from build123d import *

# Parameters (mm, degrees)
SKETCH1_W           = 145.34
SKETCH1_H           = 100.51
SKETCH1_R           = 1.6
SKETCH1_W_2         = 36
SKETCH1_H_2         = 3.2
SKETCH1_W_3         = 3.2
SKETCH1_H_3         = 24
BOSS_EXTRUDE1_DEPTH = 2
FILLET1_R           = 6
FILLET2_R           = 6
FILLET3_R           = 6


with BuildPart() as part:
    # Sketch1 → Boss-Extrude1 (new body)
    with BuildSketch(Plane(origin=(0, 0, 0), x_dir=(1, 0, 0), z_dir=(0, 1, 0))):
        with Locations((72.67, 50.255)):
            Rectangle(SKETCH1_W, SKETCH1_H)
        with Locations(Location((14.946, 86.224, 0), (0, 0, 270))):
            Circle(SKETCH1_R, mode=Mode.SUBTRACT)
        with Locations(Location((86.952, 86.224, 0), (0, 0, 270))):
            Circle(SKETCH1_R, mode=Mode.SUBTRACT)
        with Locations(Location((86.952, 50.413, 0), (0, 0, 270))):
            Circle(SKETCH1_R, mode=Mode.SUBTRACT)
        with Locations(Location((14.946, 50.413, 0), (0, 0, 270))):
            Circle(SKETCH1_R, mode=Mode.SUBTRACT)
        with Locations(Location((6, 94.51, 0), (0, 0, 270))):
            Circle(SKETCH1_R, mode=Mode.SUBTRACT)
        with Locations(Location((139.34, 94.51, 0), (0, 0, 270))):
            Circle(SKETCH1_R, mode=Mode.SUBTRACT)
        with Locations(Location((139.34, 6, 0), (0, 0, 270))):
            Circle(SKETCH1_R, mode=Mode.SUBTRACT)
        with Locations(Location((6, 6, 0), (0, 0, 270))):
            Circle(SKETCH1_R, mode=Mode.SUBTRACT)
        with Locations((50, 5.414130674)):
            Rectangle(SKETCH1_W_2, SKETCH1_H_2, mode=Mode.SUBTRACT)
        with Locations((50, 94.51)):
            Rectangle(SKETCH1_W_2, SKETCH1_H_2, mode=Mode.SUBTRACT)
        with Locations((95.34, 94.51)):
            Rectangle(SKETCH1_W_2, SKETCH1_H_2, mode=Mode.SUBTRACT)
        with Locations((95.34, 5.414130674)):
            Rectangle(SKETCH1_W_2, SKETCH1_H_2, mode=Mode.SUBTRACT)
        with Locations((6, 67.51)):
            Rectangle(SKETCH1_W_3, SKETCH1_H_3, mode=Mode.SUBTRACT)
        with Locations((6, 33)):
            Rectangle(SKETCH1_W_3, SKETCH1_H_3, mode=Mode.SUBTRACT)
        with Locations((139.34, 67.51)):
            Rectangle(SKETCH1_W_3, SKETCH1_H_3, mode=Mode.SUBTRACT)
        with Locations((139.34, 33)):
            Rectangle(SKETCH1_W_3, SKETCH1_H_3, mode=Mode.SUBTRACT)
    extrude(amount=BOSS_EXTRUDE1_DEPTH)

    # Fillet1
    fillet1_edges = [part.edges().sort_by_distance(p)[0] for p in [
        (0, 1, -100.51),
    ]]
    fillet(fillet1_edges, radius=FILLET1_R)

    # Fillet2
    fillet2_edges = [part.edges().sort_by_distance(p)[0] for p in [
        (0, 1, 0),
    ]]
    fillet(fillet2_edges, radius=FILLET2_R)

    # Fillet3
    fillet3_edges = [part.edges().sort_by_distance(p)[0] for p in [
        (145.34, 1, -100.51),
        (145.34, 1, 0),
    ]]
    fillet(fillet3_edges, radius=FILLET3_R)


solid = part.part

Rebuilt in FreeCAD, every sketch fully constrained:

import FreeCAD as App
import Part
import Sketcher


def edges_at(feature, points):
    """Names of the edges that pass closest to the given points."""
    edges = feature.Shape.Edges
    near = lambda p: min(range(len(edges)), key=lambda i: edges[i].distToShape(Part.Vertex(*p))[0])
    return sorted({f"Edge{near(p) + 1}" for p in points})

doc = App.newDocument("Part")
body = doc.addObject("PartDesign::Body", "Body")

# Sketch on XZ plane
sketch1 = body.newObject("Sketcher::SketchObject", "Sketch")
sketch1.AttachmentSupport = (doc.getObject("XZ_Plane"), [""])
sketch1.MapMode = "FlatFace"
sketch1.addGeometry(Part.LineSegment(App.Vector(0, -100.5, 0), App.Vector(0, 0, 0)), False)
sketch1.addGeometry(Part.LineSegment(App.Vector(0, 0, 0), App.Vector(145.3, 0, 0)), False)
sketch1.addGeometry(Part.LineSegment(App.Vector(145.3, 0, 0), App.Vector(145.3, -100.5, 0)), False)
sketch1.addGeometry(Part.LineSegment(App.Vector(145.3, -100.5, 0), App.Vector(0, -100.5, 0)), False)
sketch1.addGeometry(Part.Circle(App.Vector(6, -6, 0), App.Vector(0, 0, 1), 1.6), False)
sketch1.addGeometry(Part.LineSegment(App.Vector(68, -3.8, 0), App.Vector(32, -3.8, 0)), False)
sketch1.addGeometry(Part.LineSegment(App.Vector(32, -3.8, 0), App.Vector(32, -7, 0)), False)
sketch1.addGeometry(Part.LineSegment(App.Vector(32, -7, 0), App.Vector(68, -7, 0)), False)
sketch1.addGeometry(Part.LineSegment(App.Vector(68, -7, 0), App.Vector(68, -3.8, 0)), False)
sketch1.addGeometry(Part.LineSegment(App.Vector(7.6, -21, 0), App.Vector(4.4, -21, 0)), False)
sketch1.addGeometry(Part.LineSegment(App.Vector(4.4, -21, 0), App.Vector(4.4, -45, 0)), False)
sketch1.addGeometry(Part.LineSegment(App.Vector(4.4, -45, 0), App.Vector(7.6, -45, 0)), False)
sketch1.addGeometry(Part.LineSegment(App.Vector(7.6, -45, 0), App.Vector(7.6, -21, 0)), False)
sketch1.addGeometry(Part.LineSegment(App.Vector(113.3, -3.8, 0), App.Vector(77.3, -3.8, 0)), False)
sketch1.addGeometry(Part.LineSegment(App.Vector(77.3, -3.8, 0), App.Vector(77.3, -7, 0)), False)
sketch1.addGeometry(Part.LineSegment(App.Vector(77.3, -7, 0), App.Vector(113.3, -7, 0)), False)
sketch1.addGeometry(Part.LineSegment(App.Vector(113.3, -7, 0), App.Vector(113.3, -3.8, 0)), False)
sketch1.addGeometry(Part.Circle(App.Vector(139.3, -6, 0), App.Vector(0, 0, 1), 1.6), False)
sketch1.addGeometry(Part.LineSegment(App.Vector(140.9, -21, 0), App.Vector(137.7, -21, 0)), False)
sketch1.addGeometry(Part.LineSegment(App.Vector(137.7, -21, 0), App.Vector(137.7, -45, 0)), False)
sketch1.addGeometry(Part.LineSegment(App.Vector(137.7, -45, 0), App.Vector(140.9, -45, 0)), False)
sketch1.addGeometry(Part.LineSegment(App.Vector(140.9, -45, 0), App.Vector(140.9, -21, 0)), False)
sketch1.addGeometry(Part.Circle(App.Vector(14.9, -50.4, 0), App.Vector(0, 0, 1), 1.6), False)
sketch1.addGeometry(Part.LineSegment(App.Vector(7.6, -55.5, 0), App.Vector(4.4, -55.5, 0)), False)
sketch1.addGeometry(Part.LineSegment(App.Vector(4.4, -55.5, 0), App.Vector(4.4, -79.5, 0)), False)
sketch1.addGeometry(Part.LineSegment(App.Vector(4.4, -79.5, 0), App.Vector(7.6, -79.5, 0)), False)
sketch1.addGeometry(Part.LineSegment(App.Vector(7.6, -79.5, 0), App.Vector(7.6, -55.5, 0)), False)
sketch1.addGeometry(Part.Circle(App.Vector(14.9, -86.2, 0), App.Vector(0, 0, 1), 1.6), False)
sketch1.addGeometry(Part.Circle(App.Vector(6, -94.5, 0), App.Vector(0, 0, 1), 1.6), False)
sketch1.addGeometry(Part.LineSegment(App.Vector(68, -92.9, 0), App.Vector(32, -92.9, 0)), False)
sketch1.addGeometry(Part.LineSegment(App.Vector(32, -92.9, 0), App.Vector(32, -96.1, 0)), False)
sketch1.addGeometry(Part.LineSegment(App.Vector(32, -96.1, 0), App.Vector(68, -96.1, 0)), False)
sketch1.addGeometry(Part.LineSegment(App.Vector(68, -96.1, 0), App.Vector(68, -92.9, 0)), False)
sketch1.addGeometry(Part.Circle(App.Vector(87, -50.4, 0), App.Vector(0, 0, 1), 1.6), False)
sketch1.addGeometry(Part.LineSegment(App.Vector(140.9, -55.5, 0), App.Vector(137.7, -55.5, 0)), False)
sketch1.addGeometry(Part.LineSegment(App.Vector(137.7, -55.5, 0), App.Vector(137.7, -79.5, 0)), False)
sketch1.addGeometry(Part.LineSegment(App.Vector(137.7, -79.5, 0), App.Vector(140.9, -79.5, 0)), False)
sketch1.addGeometry(Part.LineSegment(App.Vector(140.9, -79.5, 0), App.Vector(140.9, -55.5, 0)), False)
sketch1.addGeometry(Part.Circle(App.Vector(87, -86.2, 0), App.Vector(0, 0, 1), 1.6), False)
sketch1.addGeometry(Part.LineSegment(App.Vector(113.3, -92.9, 0), App.Vector(77.3, -92.9, 0)), False)
sketch1.addGeometry(Part.LineSegment(App.Vector(77.3, -92.9, 0), App.Vector(77.3, -96.1, 0)), False)
sketch1.addGeometry(Part.LineSegment(App.Vector(77.3, -96.1, 0), App.Vector(113.3, -96.1, 0)), False)
sketch1.addGeometry(Part.LineSegment(App.Vector(113.3, -96.1, 0), App.Vector(113.3, -92.9, 0)), False)
sketch1.addGeometry(Part.Circle(App.Vector(139.3, -94.5, 0), App.Vector(0, 0, 1), 1.6), False)
sketch1.addConstraint(Sketcher.Constraint("Coincident", 0, 2, 1, 1))
sketch1.addConstraint(Sketcher.Constraint("Coincident", 1, 2, 2, 1))
sketch1.addConstraint(Sketcher.Constraint("Coincident", 2, 2, 3, 1))
sketch1.addConstraint(Sketcher.Constraint("Coincident", 3, 2, 0, 1))
sketch1.addConstraint(Sketcher.Constraint("Coincident", 5, 2, 6, 1))
sketch1.addConstraint(Sketcher.Constraint("Coincident", 6, 2, 7, 1))
sketch1.addConstraint(Sketcher.Constraint("Coincident", 7, 2, 8, 1))
sketch1.addConstraint(Sketcher.Constraint("Coincident", 8, 2, 5, 1))
sketch1.addConstraint(Sketcher.Constraint("Coincident", 9, 2, 10, 1))
sketch1.addConstraint(Sketcher.Constraint("Coincident", 10, 2, 11, 1))
sketch1.addConstraint(Sketcher.Constraint("Coincident", 11, 2, 12, 1))
sketch1.addConstraint(Sketcher.Constraint("Coincident", 12, 2, 9, 1))
sketch1.addConstraint(Sketcher.Constraint("Coincident", 13, 2, 14, 1))
sketch1.addConstraint(Sketcher.Constraint("Coincident", 14, 2, 15, 1))
sketch1.addConstraint(Sketcher.Constraint("Coincident", 15, 2, 16, 1))
sketch1.addConstraint(Sketcher.Constraint("Coincident", 16, 2, 13, 1))
sketch1.addConstraint(Sketcher.Constraint("Coincident", 18, 2, 19, 1))
sketch1.addConstraint(Sketcher.Constraint("Coincident", 19, 2, 20, 1))
sketch1.addConstraint(Sketcher.Constraint("Coincident", 20, 2, 21, 1))
sketch1.addConstraint(Sketcher.Constraint("Coincident", 21, 2, 18, 1))
sketch1.addConstraint(Sketcher.Constraint("Coincident", 23, 2, 24, 1))
sketch1.addConstraint(Sketcher.Constraint("Coincident", 24, 2, 25, 1))
sketch1.addConstraint(Sketcher.Constraint("Coincident", 25, 2, 26, 1))
sketch1.addConstraint(Sketcher.Constraint("Coincident", 26, 2, 23, 1))
sketch1.addConstraint(Sketcher.Constraint("Coincident", 29, 2, 30, 1))
sketch1.addConstraint(Sketcher.Constraint("Coincident", 30, 2, 31, 1))
sketch1.addConstraint(Sketcher.Constraint("Coincident", 31, 2, 32, 1))
sketch1.addConstraint(Sketcher.Constraint("Coincident", 32, 2, 29, 1))
sketch1.addConstraint(Sketcher.Constraint("Coincident", 34, 2, 35, 1))
sketch1.addConstraint(Sketcher.Constraint("Coincident", 35, 2, 36, 1))
sketch1.addConstraint(Sketcher.Constraint("Coincident", 36, 2, 37, 1))
sketch1.addConstraint(Sketcher.Constraint("Coincident", 37, 2, 34, 1))
sketch1.addConstraint(Sketcher.Constraint("Coincident", 39, 2, 40, 1))
sketch1.addConstraint(Sketcher.Constraint("Coincident", 40, 2, 41, 1))
sketch1.addConstraint(Sketcher.Constraint("Coincident", 41, 2, 42, 1))
sketch1.addConstraint(Sketcher.Constraint("Coincident", 42, 2, 39, 1))
sketch1.addConstraint(Sketcher.Constraint("Vertical", 0))
sketch1.addConstraint(Sketcher.Constraint("Horizontal", 1))
sketch1.addConstraint(Sketcher.Constraint("Vertical", 2))
sketch1.addConstraint(Sketcher.Constraint("Horizontal", 3))
sketch1.addConstraint(Sketcher.Constraint("Horizontal", 5))
sketch1.addConstraint(Sketcher.Constraint("Vertical", 6))
sketch1.addConstraint(Sketcher.Constraint("Horizontal", 7))
sketch1.addConstraint(Sketcher.Constraint("Vertical", 8))
sketch1.addConstraint(Sketcher.Constraint("Horizontal", 9))
sketch1.addConstraint(Sketcher.Constraint("Vertical", 10))
sketch1.addConstraint(Sketcher.Constraint("Horizontal", 11))
sketch1.addConstraint(Sketcher.Constraint("Vertical", 12))
sketch1.addConstraint(Sketcher.Constraint("Horizontal", 13))
sketch1.addConstraint(Sketcher.Constraint("Vertical", 14))
sketch1.addConstraint(Sketcher.Constraint("Horizontal", 15))
sketch1.addConstraint(Sketcher.Constraint("Vertical", 16))
sketch1.addConstraint(Sketcher.Constraint("Horizontal", 18))
sketch1.addConstraint(Sketcher.Constraint("Vertical", 19))
sketch1.addConstraint(Sketcher.Constraint("Horizontal", 20))
sketch1.addConstraint(Sketcher.Constraint("Vertical", 21))
sketch1.addConstraint(Sketcher.Constraint("Horizontal", 23))
sketch1.addConstraint(Sketcher.Constraint("Vertical", 24))
sketch1.addConstraint(Sketcher.Constraint("Horizontal", 25))
sketch1.addConstraint(Sketcher.Constraint("Vertical", 26))
sketch1.addConstraint(Sketcher.Constraint("Horizontal", 29))
sketch1.addConstraint(Sketcher.Constraint("Vertical", 30))
sketch1.addConstraint(Sketcher.Constraint("Horizontal", 31))
sketch1.addConstraint(Sketcher.Constraint("Vertical", 32))
sketch1.addConstraint(Sketcher.Constraint("Horizontal", 34))
sketch1.addConstraint(Sketcher.Constraint("Vertical", 35))
sketch1.addConstraint(Sketcher.Constraint("Horizontal", 36))
sketch1.addConstraint(Sketcher.Constraint("Vertical", 37))
sketch1.addConstraint(Sketcher.Constraint("Horizontal", 39))
sketch1.addConstraint(Sketcher.Constraint("Vertical", 40))
sketch1.addConstraint(Sketcher.Constraint("Horizontal", 41))
sketch1.addConstraint(Sketcher.Constraint("Vertical", 42))
sketch1.addConstraint(Sketcher.Constraint("Coincident", 0, 2, -1, 1))
sketch1.addConstraint(Sketcher.Constraint("Equal", 4, 17))
sketch1.addConstraint(Sketcher.Constraint("Equal", 17, 22))
sketch1.addConstraint(Sketcher.Constraint("Equal", 22, 27))
sketch1.addConstraint(Sketcher.Constraint("Equal", 27, 28))
sketch1.addConstraint(Sketcher.Constraint("Equal", 28, 33))
sketch1.addConstraint(Sketcher.Constraint("Equal", 33, 38))
sketch1.addConstraint(Sketcher.Constraint("Equal", 38, 43))
sketch1.addConstraint(Sketcher.Constraint("Horizontal", 4, 3, 17, 3))
sketch1.addConstraint(Sketcher.Constraint("Horizontal", 22, 3, 33, 3))
sketch1.addConstraint(Sketcher.Constraint("Horizontal", 27, 3, 38, 3))
sketch1.addConstraint(Sketcher.Constraint("Horizontal", 28, 3, 43, 3))
sketch1.addConstraint(Sketcher.Constraint("Horizontal", 8, 2, 13, 2))
sketch1.addConstraint(Sketcher.Constraint("Horizontal", 7, 2, 14, 2))
sketch1.addConstraint(Sketcher.Constraint("Horizontal", 12, 2, 18, 2))
sketch1.addConstraint(Sketcher.Constraint("Horizontal", 11, 2, 19, 2))
sketch1.addConstraint(Sketcher.Constraint("Horizontal", 26, 2, 34, 2))
sketch1.addConstraint(Sketcher.Constraint("Horizontal", 25, 2, 35, 2))
sketch1.addConstraint(Sketcher.Constraint("Horizontal", 32, 2, 39, 2))
sketch1.addConstraint(Sketcher.Constraint("Horizontal", 31, 2, 40, 2))
sketch1.addConstraint(Sketcher.Constraint("Vertical", 22, 3, 27, 3))
sketch1.addConstraint(Sketcher.Constraint("Vertical", 4, 3, 28, 3))
sketch1.addConstraint(Sketcher.Constraint("Vertical", 33, 3, 38, 3))
sketch1.addConstraint(Sketcher.Constraint("Vertical", 17, 3, 43, 3))
sketch1.addConstraint(Sketcher.Constraint("Vertical", 10, 2, 23, 2))
sketch1.addConstraint(Sketcher.Constraint("Vertical", 12, 2, 25, 2))
sketch1.addConstraint(Sketcher.Constraint("Vertical", 6, 2, 29, 2))
sketch1.addConstraint(Sketcher.Constraint("Vertical", 8, 2, 31, 2))
sketch1.addConstraint(Sketcher.Constraint("Vertical", 19, 2, 34, 2))
sketch1.addConstraint(Sketcher.Constraint("Vertical", 21, 2, 36, 2))
sketch1.addConstraint(Sketcher.Constraint("Vertical", 14, 2, 39, 2))
sketch1.addConstraint(Sketcher.Constraint("Vertical", 16, 2, 41, 2))
sketch1.addConstraint(Sketcher.Constraint("Equal", 7, 13))
sketch1.addConstraint(Sketcher.Constraint("Equal", 11, 18))
sketch1.addConstraint(Sketcher.Constraint("Equal", 36, 6))
sketch1.addConstraint(Sketcher.Constraint("Equal", 21, 24))
sketch1.addConstraint(Sketcher.Constraint("Equal", 16, 30))
sketch1.addConstraint(Sketcher.Constraint("Diameter", 4, 3.2))
sketch1.addConstraint(Sketcher.Constraint("DistanceX", 5, 2, 5, 1, 36.0))
sketch1.addConstraint(Sketcher.Constraint("DistanceY", 10, 2, 10, 1, 24.0))
sketch1.addConstraint(Sketcher.Constraint("DistanceX", 9, 2, 9, 1, 3.2))
sketch1.addConstraint(Sketcher.Constraint("DistanceX", -1, 1, 4, 3, 6.0))
sketch1.addConstraint(Sketcher.Constraint("DistanceY", 4, 3, -1, 1, 6.0))
sketch1.addConstraint(Sketcher.Constraint("DistanceX", -1, 1, 5, 2, 32.0))
sketch1.addConstraint(Sketcher.Constraint("DistanceY", 9, 2, -1, 1, 21.0))
sketch1.addConstraint(Sketcher.Constraint("DistanceX", 17, 3, 1, 2, 6.0))
sketch1.addConstraint(Sketcher.Constraint("DistanceY", 2, 2, 43, 3, 6.0))
sketch1.addConstraint(Sketcher.Constraint("DistanceX", 15, 2, 17, 3, 26.0))
sketch1.addConstraint(Sketcher.Constraint("DistanceY", 28, 3, 24, 2, 15.0))
sketch1.addConstraint(Sketcher.Constraint("DistanceX", 1, 1, 1, 2, 145.34))
sketch1.addConstraint(Sketcher.Constraint("DistanceY", 0, 1, 0, 2, 100.51))
sketch1.addConstraint(Sketcher.Constraint("DistanceX", -1, 1, 9, 2, 4.4))
sketch1.addConstraint(Sketcher.Constraint("DistanceX", 18, 2, 17, 3, 1.6))
sketch1.addConstraint(Sketcher.Constraint("DistanceY", 28, 3, 29, 2, 1.6))
sketch1.addConstraint(Sketcher.Constraint("DistanceX", -1, 1, 22, 3, 14.946))
sketch1.addConstraint(Sketcher.Constraint("DistanceY", 22, 3, -1, 1, 50.413))
sketch1.addConstraint(Sketcher.Constraint("DistanceY", 27, 3, -1, 1, 86.224))
sketch1.addConstraint(Sketcher.Constraint("DistanceX", -1, 1, 33, 3, 86.952))
sketch1.addConstraint(Sketcher.Constraint("DistanceY", 5, 2, -1, 1, 3.814131))
pad1 = body.newObject("PartDesign::Pad", "Pad")
pad1.Profile = sketch1
pad1.Length = 2
pad1.Reversed = True
doc.recompute()

fillet = body.newObject("PartDesign::Fillet", "Fillet")
fillet.Base = (pad1, edges_at(pad1, [(0, 1, -100.51)]))
fillet.Radius = 6
doc.recompute()

fillet2 = body.newObject("PartDesign::Fillet", "Fillet001")
fillet2.Base = (fillet, edges_at(fillet, [(0, 1, 0)]))
fillet2.Radius = 6
doc.recompute()

fillet3 = body.newObject("PartDesign::Fillet", "Fillet002")
fillet3.Base = (fillet2, edges_at(fillet2, [(145.34, 1, -100.51), (145.34, 1, 0)]))
fillet3.Radius = 6

doc.recompute()
